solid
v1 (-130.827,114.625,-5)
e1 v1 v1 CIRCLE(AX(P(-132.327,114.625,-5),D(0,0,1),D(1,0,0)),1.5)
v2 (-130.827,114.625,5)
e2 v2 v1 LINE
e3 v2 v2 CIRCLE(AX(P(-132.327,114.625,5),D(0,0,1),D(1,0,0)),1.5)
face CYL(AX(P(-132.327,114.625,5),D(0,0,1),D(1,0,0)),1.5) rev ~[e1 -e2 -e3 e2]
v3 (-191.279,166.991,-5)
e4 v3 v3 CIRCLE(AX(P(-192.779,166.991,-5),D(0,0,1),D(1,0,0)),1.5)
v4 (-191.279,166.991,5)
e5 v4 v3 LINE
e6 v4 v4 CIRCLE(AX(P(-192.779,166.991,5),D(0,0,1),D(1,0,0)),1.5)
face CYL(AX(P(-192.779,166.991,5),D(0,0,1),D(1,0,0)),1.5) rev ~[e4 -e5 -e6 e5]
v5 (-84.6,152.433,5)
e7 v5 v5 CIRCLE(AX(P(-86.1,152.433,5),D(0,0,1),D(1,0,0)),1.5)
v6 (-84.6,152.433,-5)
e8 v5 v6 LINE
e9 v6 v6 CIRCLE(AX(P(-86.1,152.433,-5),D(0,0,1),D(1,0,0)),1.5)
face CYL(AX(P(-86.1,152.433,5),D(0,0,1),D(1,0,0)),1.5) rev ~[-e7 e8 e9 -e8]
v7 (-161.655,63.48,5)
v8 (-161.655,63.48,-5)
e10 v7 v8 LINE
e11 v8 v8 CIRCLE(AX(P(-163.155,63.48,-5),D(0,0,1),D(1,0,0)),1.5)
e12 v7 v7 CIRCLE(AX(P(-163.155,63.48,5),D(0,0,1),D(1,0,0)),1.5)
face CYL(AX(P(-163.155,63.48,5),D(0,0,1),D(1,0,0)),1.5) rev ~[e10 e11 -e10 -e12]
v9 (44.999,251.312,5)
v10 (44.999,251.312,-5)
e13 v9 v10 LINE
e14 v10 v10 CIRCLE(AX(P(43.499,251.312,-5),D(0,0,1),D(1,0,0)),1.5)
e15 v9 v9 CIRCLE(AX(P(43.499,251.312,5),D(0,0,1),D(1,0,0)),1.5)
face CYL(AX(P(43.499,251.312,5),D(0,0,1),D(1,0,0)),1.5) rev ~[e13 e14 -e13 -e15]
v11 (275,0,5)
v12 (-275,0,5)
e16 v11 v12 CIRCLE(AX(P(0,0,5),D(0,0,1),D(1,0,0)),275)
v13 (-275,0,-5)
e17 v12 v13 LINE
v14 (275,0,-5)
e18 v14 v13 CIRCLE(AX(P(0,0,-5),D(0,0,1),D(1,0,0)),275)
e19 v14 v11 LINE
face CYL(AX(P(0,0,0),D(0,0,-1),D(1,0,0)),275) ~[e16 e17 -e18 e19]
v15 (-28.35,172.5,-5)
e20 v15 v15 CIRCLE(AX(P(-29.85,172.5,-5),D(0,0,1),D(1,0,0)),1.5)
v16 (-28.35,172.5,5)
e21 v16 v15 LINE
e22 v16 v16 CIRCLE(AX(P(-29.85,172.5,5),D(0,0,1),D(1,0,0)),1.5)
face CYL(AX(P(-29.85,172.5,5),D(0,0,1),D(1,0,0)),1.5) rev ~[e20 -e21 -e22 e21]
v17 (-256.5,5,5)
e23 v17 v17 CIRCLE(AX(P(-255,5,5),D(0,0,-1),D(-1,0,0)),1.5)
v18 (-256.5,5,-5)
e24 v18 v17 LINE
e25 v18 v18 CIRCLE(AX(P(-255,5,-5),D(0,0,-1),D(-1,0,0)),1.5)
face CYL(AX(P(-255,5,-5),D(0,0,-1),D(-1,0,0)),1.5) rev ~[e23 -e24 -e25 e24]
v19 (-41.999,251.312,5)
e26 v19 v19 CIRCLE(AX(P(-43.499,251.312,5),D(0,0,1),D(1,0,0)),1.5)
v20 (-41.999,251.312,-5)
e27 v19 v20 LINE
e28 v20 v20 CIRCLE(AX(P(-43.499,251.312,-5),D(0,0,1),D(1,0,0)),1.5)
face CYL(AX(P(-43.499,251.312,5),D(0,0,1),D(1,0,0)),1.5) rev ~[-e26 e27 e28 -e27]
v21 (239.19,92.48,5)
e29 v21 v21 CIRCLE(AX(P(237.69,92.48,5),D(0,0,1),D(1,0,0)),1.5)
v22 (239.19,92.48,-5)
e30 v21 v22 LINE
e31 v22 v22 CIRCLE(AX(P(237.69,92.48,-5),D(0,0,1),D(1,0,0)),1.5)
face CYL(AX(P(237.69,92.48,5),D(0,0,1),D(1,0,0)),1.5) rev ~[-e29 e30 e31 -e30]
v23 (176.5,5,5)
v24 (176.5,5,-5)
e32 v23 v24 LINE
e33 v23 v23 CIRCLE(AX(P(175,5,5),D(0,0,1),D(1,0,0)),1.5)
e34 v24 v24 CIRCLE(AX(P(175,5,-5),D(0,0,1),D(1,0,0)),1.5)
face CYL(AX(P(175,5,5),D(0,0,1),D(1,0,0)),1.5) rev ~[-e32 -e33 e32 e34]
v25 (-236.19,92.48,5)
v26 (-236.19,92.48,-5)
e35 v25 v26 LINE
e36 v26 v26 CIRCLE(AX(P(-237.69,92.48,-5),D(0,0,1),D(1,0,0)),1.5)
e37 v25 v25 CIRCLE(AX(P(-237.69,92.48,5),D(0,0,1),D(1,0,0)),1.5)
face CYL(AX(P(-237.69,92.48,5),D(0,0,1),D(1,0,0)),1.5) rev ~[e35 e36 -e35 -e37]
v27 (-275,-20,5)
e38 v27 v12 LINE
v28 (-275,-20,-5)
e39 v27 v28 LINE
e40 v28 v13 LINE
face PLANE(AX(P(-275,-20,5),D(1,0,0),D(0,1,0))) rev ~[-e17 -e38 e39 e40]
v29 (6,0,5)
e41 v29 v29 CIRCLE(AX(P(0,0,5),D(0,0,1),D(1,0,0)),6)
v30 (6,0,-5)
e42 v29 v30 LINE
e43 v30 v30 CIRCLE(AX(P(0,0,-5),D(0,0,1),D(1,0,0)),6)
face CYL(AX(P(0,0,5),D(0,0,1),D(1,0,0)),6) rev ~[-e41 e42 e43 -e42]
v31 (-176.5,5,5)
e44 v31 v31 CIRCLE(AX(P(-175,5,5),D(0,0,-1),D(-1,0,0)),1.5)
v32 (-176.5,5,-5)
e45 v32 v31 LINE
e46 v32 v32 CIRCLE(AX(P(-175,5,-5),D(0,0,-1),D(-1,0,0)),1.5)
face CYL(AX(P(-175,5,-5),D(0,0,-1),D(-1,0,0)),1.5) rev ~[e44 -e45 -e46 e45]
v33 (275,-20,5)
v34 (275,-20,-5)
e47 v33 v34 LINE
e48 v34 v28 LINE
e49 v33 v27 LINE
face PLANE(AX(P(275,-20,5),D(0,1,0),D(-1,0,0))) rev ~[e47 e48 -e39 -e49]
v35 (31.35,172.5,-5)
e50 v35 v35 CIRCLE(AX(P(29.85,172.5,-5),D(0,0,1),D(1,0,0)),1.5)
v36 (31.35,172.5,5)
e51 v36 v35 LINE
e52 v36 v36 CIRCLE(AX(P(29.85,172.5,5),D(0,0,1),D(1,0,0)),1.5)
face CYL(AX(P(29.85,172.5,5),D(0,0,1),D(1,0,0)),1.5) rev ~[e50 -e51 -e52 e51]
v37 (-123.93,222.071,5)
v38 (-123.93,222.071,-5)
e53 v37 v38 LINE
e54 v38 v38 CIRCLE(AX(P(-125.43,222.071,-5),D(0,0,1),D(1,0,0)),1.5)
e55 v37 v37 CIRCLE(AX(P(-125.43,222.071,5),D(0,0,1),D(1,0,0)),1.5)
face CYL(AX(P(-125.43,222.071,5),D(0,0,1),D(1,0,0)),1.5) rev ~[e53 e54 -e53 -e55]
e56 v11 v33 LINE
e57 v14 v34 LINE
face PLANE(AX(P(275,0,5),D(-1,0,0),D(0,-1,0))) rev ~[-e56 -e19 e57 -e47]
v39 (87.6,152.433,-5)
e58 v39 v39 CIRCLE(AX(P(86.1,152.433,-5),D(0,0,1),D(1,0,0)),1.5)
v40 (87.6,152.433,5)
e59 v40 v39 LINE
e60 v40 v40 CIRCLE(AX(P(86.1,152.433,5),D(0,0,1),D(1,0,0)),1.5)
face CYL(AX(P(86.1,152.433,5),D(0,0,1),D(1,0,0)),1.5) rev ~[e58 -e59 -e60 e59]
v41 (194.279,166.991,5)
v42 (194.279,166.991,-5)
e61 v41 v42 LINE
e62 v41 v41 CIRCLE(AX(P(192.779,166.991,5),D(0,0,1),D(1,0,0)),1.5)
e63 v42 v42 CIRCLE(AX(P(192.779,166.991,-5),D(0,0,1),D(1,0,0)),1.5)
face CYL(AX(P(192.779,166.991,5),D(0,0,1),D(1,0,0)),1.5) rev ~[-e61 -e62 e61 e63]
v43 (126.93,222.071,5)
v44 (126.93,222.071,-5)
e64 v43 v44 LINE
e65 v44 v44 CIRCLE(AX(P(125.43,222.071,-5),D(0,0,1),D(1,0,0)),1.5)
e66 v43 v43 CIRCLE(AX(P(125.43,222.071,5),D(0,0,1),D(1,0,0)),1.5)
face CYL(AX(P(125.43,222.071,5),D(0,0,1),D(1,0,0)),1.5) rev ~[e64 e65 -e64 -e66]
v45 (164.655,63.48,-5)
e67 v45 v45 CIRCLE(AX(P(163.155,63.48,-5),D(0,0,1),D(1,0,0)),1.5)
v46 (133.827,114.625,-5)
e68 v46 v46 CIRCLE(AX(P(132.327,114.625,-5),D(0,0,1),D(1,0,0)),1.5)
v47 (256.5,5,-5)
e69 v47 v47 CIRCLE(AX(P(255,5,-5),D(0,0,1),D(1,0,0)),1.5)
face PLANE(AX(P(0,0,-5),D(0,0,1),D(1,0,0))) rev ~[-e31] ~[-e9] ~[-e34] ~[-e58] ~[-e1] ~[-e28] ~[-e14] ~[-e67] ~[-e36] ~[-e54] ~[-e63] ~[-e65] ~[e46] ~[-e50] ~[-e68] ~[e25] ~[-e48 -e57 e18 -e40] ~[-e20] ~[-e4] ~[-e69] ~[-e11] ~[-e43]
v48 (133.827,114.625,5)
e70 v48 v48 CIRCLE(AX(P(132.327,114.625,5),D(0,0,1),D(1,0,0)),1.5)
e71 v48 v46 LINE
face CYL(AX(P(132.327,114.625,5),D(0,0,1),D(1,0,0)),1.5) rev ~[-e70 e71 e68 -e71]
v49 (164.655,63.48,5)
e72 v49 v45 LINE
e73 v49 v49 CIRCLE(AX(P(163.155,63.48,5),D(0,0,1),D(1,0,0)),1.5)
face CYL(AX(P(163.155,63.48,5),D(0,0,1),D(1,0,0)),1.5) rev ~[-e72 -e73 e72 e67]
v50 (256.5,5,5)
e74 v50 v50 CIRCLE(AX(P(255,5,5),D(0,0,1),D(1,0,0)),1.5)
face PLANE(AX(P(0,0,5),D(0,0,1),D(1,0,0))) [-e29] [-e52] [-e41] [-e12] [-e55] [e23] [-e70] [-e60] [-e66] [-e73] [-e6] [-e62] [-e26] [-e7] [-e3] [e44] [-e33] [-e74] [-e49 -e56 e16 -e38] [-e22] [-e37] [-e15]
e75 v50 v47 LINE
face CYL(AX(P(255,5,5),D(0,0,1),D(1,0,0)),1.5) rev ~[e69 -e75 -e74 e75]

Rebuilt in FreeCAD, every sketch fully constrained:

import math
import FreeCAD as App
import Part
import Sketcher
from FreeCAD import Vector
Q = App.Units.Quantity


def add_polygon(sketch, points):
    """Adds a closed chain of lines whose ends are joined by coincident constraints."""
    first, n = sketch.GeometryCount, len(points)
    for a, b in zip(points, points[1:] + points[:1]):
        sketch.addGeometry(Part.LineSegment(App.Vector(*a, 0), App.Vector(*b, 0)), False)
    for i in range(n):
        sketch.addConstraint(Sketcher.Constraint("Coincident", first + i, 2, first + (i + 1) % n, 1))

doc = App.newDocument("Part")
params = doc.addObject("Spreadsheet::Sheet", "Params")
for row, (alias, value) in enumerate([
    ("sketch1_radius", "275 mm"),
    ("pad1_length", "10 mm"),
    ("sketch2_diameter", "3 mm"),
    ("pocket1_length", "10 mm"),
    ("sketch3_diameter", "3 mm"),
    ("pocket2_length", "10 mm"),
    ("sketch4_diameter", "3 mm"),
    ("pocket3_length", "10 mm"),
    ("sketch5_diameter", "3 mm"),
    ("pocket4_length", "10 mm"),
    ("sketch6_diameter", "3 mm"),
    ("pocket5_length", "10 mm"),
    ("sketch7_diameter", "3 mm"),
    ("pocket6_length", "10 mm"),
    ("sketch8_diameter", "3 mm"),
    ("pocket7_length", "10 mm"),
    ("sketch9_height", "20 mm"),
    ("sketch9_width", "550 mm"),
    ("pad2_length", "10 mm"),
    ("sketch10_diameter", "12 mm"),
    ("pocket8_length", "10 mm"),
], start=1):
    params.set(f"A{row}", alias)
    params.set(f"B{row}", "=" + value)
    params.setAlias(f"B{row}", alias)

body = doc.addObject("PartDesign::Body", "Body")

# Sketch on XY plane
sketch1 = body.newObject("Sketcher::SketchObject", "Sketch")
sketch1.AttachmentSupport = (doc.getObject("XY_Plane"), [""])
sketch1.MapMode = "FlatFace"
sketch1.addGeometry([
    Part.ArcOfCircle(Part.Circle(Vector(0, 0, 0), Vector(0, 0, 1), 275), math.radians(0), math.radians(180)),
    Part.LineSegment(Vector(-275, 0, 0), Vector(275, 0, 0)),
], False)
sketch1.addConstraint([
    Sketcher.Constraint("Coincident", 0, 1, 1, 2),
    Sketcher.Constraint("Coincident", 1, 1, 0, 2),
    Sketcher.Constraint("Horizontal", 1),
    Sketcher.Constraint("Coincident", 0, 3, -1, 1),
    Sketcher.Constraint("PointOnObject", 0, 1, -1),
    Sketcher.Constraint("Radius", 0, Q("275 mm")),
])
sketch1.setExpression("Constraints[5]", "Params.sketch1_radius")
pad1 = body.newObject("PartDesign::Pad", "Pad")
pad1.Profile = sketch1
pad1.setExpression("Length", "Params.pad1_length")
pad1.Midplane = True

# Sketch on XY plane
sketch2 = body.newObject("Sketcher::SketchObject", "Sketch001")
sketch2.AttachmentSupport = (doc.getObject("XY_Plane"), [""])
sketch2.MapMode = "FlatFace"
sketch2.AttachmentOffset = App.Placement(Vector(0, 0, -5), App.Rotation())
sketch2.addGeometry(Part.Circle(Vector(-175, 5, 0), Vector(0, 0, 1), 1.5), False)
sketch2.addConstraint([
    Sketcher.Constraint("Diameter", 0, Q("3 mm")),
    Sketcher.Constraint("DistanceX", 0, 3, -1, 1, Q("175 mm")),
    Sketcher.Constraint("DistanceY", -1, 1, 0, 3, Q("5 mm")),
])
sketch2.setExpression("Constraints[0]", "Params.sketch2_diameter")
pocket1 = body.newObject("PartDesign::Pocket", "Pocket")
pocket1.Profile = sketch2
pocket1.setExpression("Length", "Params.pocket1_length")
pocket1.Reversed = True

# Sketch on XY plane
sketch3 = body.newObject("Sketcher::SketchObject", "Sketch002")
sketch3.AttachmentSupport = (doc.getObject("XY_Plane"), [""])
sketch3.MapMode = "FlatFace"
sketch3.AttachmentOffset = App.Placement(Vector(0, 0, -5), App.Rotation())
sketch3.addGeometry(Part.Circle(Vector(-255, 5, 0), Vector(0, 0, 1), 1.5), False)
sketch3.addConstraint([
    Sketcher.Constraint("Diameter", 0, Q("3 mm")),
    Sketcher.Constraint("DistanceX", 0, 3, -1, 1, Q("255 mm")),
    Sketcher.Constraint("DistanceY", -1, 1, 0, 3, Q("5 mm")),
])
sketch3.setExpression("Constraints[0]", "Params.sketch3_diameter")
pocket2 = body.newObject("PartDesign::Pocket", "Pocket001")
pocket2.Profile = sketch3
pocket2.setExpression("Length", "Params.pocket2_length")
pocket2.Reversed = True

# Sketch on XY plane
sketch4 = body.newObject("Sketcher::SketchObject", "Sketch003")
sketch4.AttachmentSupport = (doc.getObject("XY_Plane"), [""])
sketch4.MapMode = "FlatFace"
sketch4.AttachmentOffset = App.Placement(Vector(0, 0, 5), App.Rotation())
sketch4.addGeometry(Part.Circle(Vector(175, 5, 0), Vector(0, 0, 1), 1.5), False)
sketch4.addConstraint([
    Sketcher.Constraint("Diameter", 0, Q("3 mm")),
    Sketcher.Constraint("DistanceX", -1, 1, 0, 3, Q("175 mm")),
    Sketcher.Constraint("DistanceY", -1, 1, 0, 3, Q("5 mm")),
])
sketch4.setExpression("Constraints[0]", "Params.sketch4_diameter")
pocket3 = body.newObject("PartDesign::Pocket", "Pocket002")
pocket3.Profile = sketch4
pocket3.setExpression("Length", "Params.pocket3_length")

# Sketch on XY plane
sketch5 = body.newObject("Sketcher::SketchObject", "Sketch004")
sketch5.AttachmentSupport = (doc.getObject("XY_Plane"), [""])
sketch5.MapMode = "FlatFace"
sketch5.AttachmentOffset = App.Placement(Vector(0, 0, 5), App.Rotation())
sketch5.addGeometry(Part.Circle(Vector(255, 5, 0), Vector(0, 0, 1), 1.5), False)
sketch5.addConstraint([
    Sketcher.Constraint("Diameter", 0, Q("3 mm")),
    Sketcher.Constraint("DistanceX", -1, 1, 0, 3, Q("255 mm")),
    Sketcher.Constraint("DistanceY", -1, 1, 0, 3, Q("5 mm")),
])
sketch5.setExpression("Constraints[0]", "Params.sketch5_diameter")
pocket4 = body.newObject("PartDesign::Pocket", "Pocket003")
pocket4.Profile = sketch5
pocket4.setExpression("Length", "Params.pocket4_length")

# Sketch on XY plane
sketch6 = body.newObject("Sketcher::SketchObject", "Sketch005")
sketch6.AttachmentSupport = (doc.getObject("XY_Plane"), [""])
sketch6.MapMode = "FlatFace"
sketch6.AttachmentOffset = App.Placement(Vector(0, 0, 5), App.Rotation())
sketch6.addGeometry([
    Part.Circle(Vector(163.2, 63.5, 0), Vector(0, 0, 1), 1.5),
    Part.Circle(Vector(237.7, 92.5, 0), Vector(0, 0, 1), 1.5),
], False)
sketch6.addConstraint([
    Sketcher.Constraint("Equal", 0, 1),
    Sketcher.Constraint("Diameter", 0, Q("3 mm")),
    Sketcher.Constraint("DistanceY", -1, 1, 0, 3, Q("63.48 mm")),
    Sketcher.Constraint("DistanceX", -1, 1, 1, 3, Q("237.69 mm")),
    Sketcher.Constraint("DistanceY", -1, 1, 1, 3, Q("92.48 mm")),
    Sketcher.Constraint("DistanceX", -1, 1, 0, 3, Q("163.155 mm")),
])
sketch6.setExpression("Constraints[1]", "Params.sketch6_diameter")
pocket5 = body.newObject("PartDesign::Pocket", "Pocket004")
pocket5.Profile = sketch6
pocket5.setExpression("Length", "Params.pocket5_length")

# Sketch on XY plane
sketch7 = body.newObject("Sketcher::SketchObject", "Sketch006")
sketch7.AttachmentSupport = (doc.getObject("XY_Plane"), [""])
sketch7.MapMode = "FlatFace"
sketch7.AttachmentOffset = App.Placement(Vector(0, 0, 5), App.Rotation())
sketch7.addGeometry([
    Part.Circle(Vector(132.3, 114.6, 0), Vector(0, 0, 1), 1.5),  # 0
    Part.Circle(Vector(192.8, 167, 0), Vector(0, 0, 1), 1.5),  # 1
    Part.Circle(Vector(86.1, 152.4, 0), Vector(0, 0, 1), 1.5),  # 2
    Part.Circle(Vector(125.4, 222.1, 0), Vector(0, 0, 1), 1.5),  # 3
    Part.Circle(Vector(29.9, 172.5, 0), Vector(0, 0, 1), 1.5),  # 4
    Part.Circle(Vector(43.5, 251.3, 0), Vector(0, 0, 1), 1.5),  # 5
], False)
sketch7.addConstraint([
    Sketcher.Constraint("Equal", 0, 1),
    Sketcher.Constraint("Equal", 1, 2),
    Sketcher.Constraint("Equal", 2, 3),
    Sketcher.Constraint("Equal", 3, 4),
    Sketcher.Constraint("Equal", 4, 5),
    Sketcher.Constraint("Diameter", 0, Q("3 mm")),
    Sketcher.Constraint("DistanceX", -1, 1, 2, 3, Q("86.1 mm")),
    Sketcher.Constraint("DistanceY", -1, 1, 4, 3, Q("172.5 mm")),
    Sketcher.Constraint("DistanceX", -1, 1, 3, 3, Q("125.43 mm")),
    Sketcher.Constraint("DistanceX", -1, 1, 4, 3, Q("29.85 mm")),
    Sketcher.Constraint("DistanceX", -1, 1, 0, 3, Q("132.327 mm")),
    Sketcher.Constraint("DistanceY", -1, 1, 0, 3, Q("114.625 mm")),
    Sketcher.Constraint("DistanceX", -1, 1, 1, 3, Q("192.779 mm")),
    Sketcher.Constraint("DistanceY", -1, 1, 1, 3, Q("166.991 mm")),
    Sketcher.Constraint("DistanceY", -1, 1, 2, 3, Q("152.433 mm")),
    Sketcher.Constraint("DistanceY", -1, 1, 3, 3, Q("222.071 mm")),
    Sketcher.Constraint("DistanceX", -1, 1, 5, 3, Q("43.499 mm")),
    Sketcher.Constraint("DistanceY", -1, 1, 5, 3, Q("251.312 mm")),
])
sketch7.setExpression("Constraints[5]", "Params.sketch7_diameter")
pocket6 = body.newObject("PartDesign::Pocket", "Pocket005")
pocket6.Profile = sketch7
pocket6.setExpression("Length", "Params.pocket6_length")

# Sketch on XY plane
sketch8 = body.newObject("Sketcher::SketchObject", "Sketch007")
sketch8.AttachmentSupport = (doc.getObject("XY_Plane"), [""])
sketch8.MapMode = "FlatFace"
sketch8.AttachmentOffset = App.Placement(Vector(0, 0, 5), App.Rotation())
sketch8.addGeometry([
    Part.Circle(Vector(-163.2, 63.5, 0), Vector(0, 0, 1), 1.5),  # 0
    Part.Circle(Vector(-237.7, 92.5, 0), Vector(0, 0, 1), 1.5),  # 1
    Part.Circle(Vector(-132.3, 114.6, 0), Vector(0, 0, 1), 1.5),  # 2
    Part.Circle(Vector(-192.8, 167, 0), Vector(0, 0, 1), 1.5),  # 3
    Part.Circle(Vector(-86.1, 152.4, 0), Vector(0, 0, 1), 1.5),  # 4
    Part.Circle(Vector(-125.4, 222.1, 0), Vector(0, 0, 1), 1.5),  # 5
    Part.Circle(Vector(-29.9, 172.5, 0), Vector(0, 0, 1), 1.5),  # 6
    Part.Circle(Vector(-43.5, 251.3, 0), Vector(0, 0, 1), 1.5),  # 7
], False)
sketch8.addConstraint([
    Sketcher.Constraint("Equal", 0, 1),
    Sketcher.Constraint("Equal", 1, 2),
    Sketcher.Constraint("Equal", 2, 3),
    Sketcher.Constraint("Equal", 3, 4),
    Sketcher.Constraint("Equal", 4, 5),
    Sketcher.Constraint("Equal", 5, 6),
    Sketcher.Constraint("Equal", 6, 7),
    Sketcher.Constraint("Diameter", 0, Q("3 mm")),
    Sketcher.Constraint("DistanceX", 4, 3, -1, 1, Q("86.1 mm")),
    Sketcher.Constraint("DistanceY", -1, 1, 6, 3, Q("172.5 mm")),
    Sketcher.Constraint("DistanceY", -1, 1, 0, 3, Q("63.48 mm")),
    Sketcher.Constraint("DistanceX", 1, 3, -1, 1, Q("237.69 mm")),
    Sketcher.Constraint("DistanceY", -1, 1, 1, 3, Q("92.48 mm")),
    Sketcher.Constraint("DistanceX", 5, 3, -1, 1, Q("125.43 mm")),
    Sketcher.Constraint("DistanceX", 6, 3, -1, 1, Q("29.85 mm")),
    Sketcher.Constraint("DistanceX", 0, 3, -1, 1, Q("163.155 mm")),
    Sketcher.Constraint("DistanceX", 2, 3, -1, 1, Q("132.327 mm")),
    Sketcher.Constraint("DistanceY", -1, 1, 2, 3, Q("114.625 mm")),
    Sketcher.Constraint("DistanceX", 3, 3, -1, 1, Q("192.779 mm")),
    Sketcher.Constraint("DistanceY", -1, 1, 3, 3, Q("166.991 mm")),
    Sketcher.Constraint("DistanceY", -1, 1, 4, 3, Q("152.433 mm")),
    Sketcher.Constraint("DistanceY", -1, 1, 5, 3, Q("222.071 mm")),
    Sketcher.Constraint("DistanceX", 7, 3, -1, 1, Q("43.499 mm")),
    Sketcher.Constraint("DistanceY", -1, 1, 7, 3, Q("251.312 mm")),
])
sketch8.setExpression("Constraints[7]", "Params.sketch8_diameter")
pocket7 = body.newObject("PartDesign::Pocket", "Pocket006")
pocket7.Profile = sketch8
pocket7.setExpression("Length", "Params.pocket7_length")

# Sketch on XY plane
sketch9 = body.newObject("Sketcher::SketchObject", "Sketch008")
sketch9.AttachmentSupport = (doc.getObject("XY_Plane"), [""])
sketch9.MapMode = "FlatFace"
sketch9.AttachmentOffset = App.Placement(Vector(0, 0, 5), App.Rotation())
add_polygon(sketch9, [(275, -20), (275, 0), (-275, 0), (-275, -20)])  # lines 0-3
sketch9.addConstraint([
    Sketcher.Constraint("Vertical", 0),
    Sketcher.Constraint("Horizontal", 1),
    Sketcher.Constraint("Vertical", 2),
    Sketcher.Constraint("Horizontal", 3),
    Sketcher.Constraint("Symmetric", 0, 2, 1, 2, -1, 1),
    Sketcher.Constraint("DistanceY", 0, 1, 0, 2, Q("20 mm")),
    Sketcher.Constraint("DistanceX", 1, 2, 1, 1, Q("550 mm")),
])
sketch9.setExpression("Constraints[9]", "Params.sketch9_height")
sketch9.setExpression("Constraints[10]", "Params.sketch9_width")
pad2 = body.newObject("PartDesign::Pad", "Pad001")
pad2.Profile = sketch9
pad2.setExpression("Length", "Params.pad2_length")
pad2.Reversed = True

# Sketch on XY plane
sketch10 = body.newObject("Sketcher::SketchObject", "Sketch009")
sketch10.AttachmentSupport = (doc.getObject("XY_Plane"), [""])
sketch10.MapMode = "FlatFace"
sketch10.AttachmentOffset = App.Placement(Vector(0, 0, 5), App.Rotation())
sketch10.addGeometry(Part.Circle(Vector(0, 0, 0), Vector(0, 0, 1), 6), False)
sketch10.addConstraint([
    Sketcher.Constraint("Coincident", 0, 3, -1, 1),
    Sketcher.Constraint("Diameter", 0, Q("12 mm")),
])
sketch10.setExpression("Constraints[1]", "Params.sketch10_diameter")
pocket8 = body.newObject("PartDesign::Pocket", "Pocket007")
pocket8.Profile = sketch10
pocket8.setExpression("Length", "Params.pocket8_length")

doc.recompute()
